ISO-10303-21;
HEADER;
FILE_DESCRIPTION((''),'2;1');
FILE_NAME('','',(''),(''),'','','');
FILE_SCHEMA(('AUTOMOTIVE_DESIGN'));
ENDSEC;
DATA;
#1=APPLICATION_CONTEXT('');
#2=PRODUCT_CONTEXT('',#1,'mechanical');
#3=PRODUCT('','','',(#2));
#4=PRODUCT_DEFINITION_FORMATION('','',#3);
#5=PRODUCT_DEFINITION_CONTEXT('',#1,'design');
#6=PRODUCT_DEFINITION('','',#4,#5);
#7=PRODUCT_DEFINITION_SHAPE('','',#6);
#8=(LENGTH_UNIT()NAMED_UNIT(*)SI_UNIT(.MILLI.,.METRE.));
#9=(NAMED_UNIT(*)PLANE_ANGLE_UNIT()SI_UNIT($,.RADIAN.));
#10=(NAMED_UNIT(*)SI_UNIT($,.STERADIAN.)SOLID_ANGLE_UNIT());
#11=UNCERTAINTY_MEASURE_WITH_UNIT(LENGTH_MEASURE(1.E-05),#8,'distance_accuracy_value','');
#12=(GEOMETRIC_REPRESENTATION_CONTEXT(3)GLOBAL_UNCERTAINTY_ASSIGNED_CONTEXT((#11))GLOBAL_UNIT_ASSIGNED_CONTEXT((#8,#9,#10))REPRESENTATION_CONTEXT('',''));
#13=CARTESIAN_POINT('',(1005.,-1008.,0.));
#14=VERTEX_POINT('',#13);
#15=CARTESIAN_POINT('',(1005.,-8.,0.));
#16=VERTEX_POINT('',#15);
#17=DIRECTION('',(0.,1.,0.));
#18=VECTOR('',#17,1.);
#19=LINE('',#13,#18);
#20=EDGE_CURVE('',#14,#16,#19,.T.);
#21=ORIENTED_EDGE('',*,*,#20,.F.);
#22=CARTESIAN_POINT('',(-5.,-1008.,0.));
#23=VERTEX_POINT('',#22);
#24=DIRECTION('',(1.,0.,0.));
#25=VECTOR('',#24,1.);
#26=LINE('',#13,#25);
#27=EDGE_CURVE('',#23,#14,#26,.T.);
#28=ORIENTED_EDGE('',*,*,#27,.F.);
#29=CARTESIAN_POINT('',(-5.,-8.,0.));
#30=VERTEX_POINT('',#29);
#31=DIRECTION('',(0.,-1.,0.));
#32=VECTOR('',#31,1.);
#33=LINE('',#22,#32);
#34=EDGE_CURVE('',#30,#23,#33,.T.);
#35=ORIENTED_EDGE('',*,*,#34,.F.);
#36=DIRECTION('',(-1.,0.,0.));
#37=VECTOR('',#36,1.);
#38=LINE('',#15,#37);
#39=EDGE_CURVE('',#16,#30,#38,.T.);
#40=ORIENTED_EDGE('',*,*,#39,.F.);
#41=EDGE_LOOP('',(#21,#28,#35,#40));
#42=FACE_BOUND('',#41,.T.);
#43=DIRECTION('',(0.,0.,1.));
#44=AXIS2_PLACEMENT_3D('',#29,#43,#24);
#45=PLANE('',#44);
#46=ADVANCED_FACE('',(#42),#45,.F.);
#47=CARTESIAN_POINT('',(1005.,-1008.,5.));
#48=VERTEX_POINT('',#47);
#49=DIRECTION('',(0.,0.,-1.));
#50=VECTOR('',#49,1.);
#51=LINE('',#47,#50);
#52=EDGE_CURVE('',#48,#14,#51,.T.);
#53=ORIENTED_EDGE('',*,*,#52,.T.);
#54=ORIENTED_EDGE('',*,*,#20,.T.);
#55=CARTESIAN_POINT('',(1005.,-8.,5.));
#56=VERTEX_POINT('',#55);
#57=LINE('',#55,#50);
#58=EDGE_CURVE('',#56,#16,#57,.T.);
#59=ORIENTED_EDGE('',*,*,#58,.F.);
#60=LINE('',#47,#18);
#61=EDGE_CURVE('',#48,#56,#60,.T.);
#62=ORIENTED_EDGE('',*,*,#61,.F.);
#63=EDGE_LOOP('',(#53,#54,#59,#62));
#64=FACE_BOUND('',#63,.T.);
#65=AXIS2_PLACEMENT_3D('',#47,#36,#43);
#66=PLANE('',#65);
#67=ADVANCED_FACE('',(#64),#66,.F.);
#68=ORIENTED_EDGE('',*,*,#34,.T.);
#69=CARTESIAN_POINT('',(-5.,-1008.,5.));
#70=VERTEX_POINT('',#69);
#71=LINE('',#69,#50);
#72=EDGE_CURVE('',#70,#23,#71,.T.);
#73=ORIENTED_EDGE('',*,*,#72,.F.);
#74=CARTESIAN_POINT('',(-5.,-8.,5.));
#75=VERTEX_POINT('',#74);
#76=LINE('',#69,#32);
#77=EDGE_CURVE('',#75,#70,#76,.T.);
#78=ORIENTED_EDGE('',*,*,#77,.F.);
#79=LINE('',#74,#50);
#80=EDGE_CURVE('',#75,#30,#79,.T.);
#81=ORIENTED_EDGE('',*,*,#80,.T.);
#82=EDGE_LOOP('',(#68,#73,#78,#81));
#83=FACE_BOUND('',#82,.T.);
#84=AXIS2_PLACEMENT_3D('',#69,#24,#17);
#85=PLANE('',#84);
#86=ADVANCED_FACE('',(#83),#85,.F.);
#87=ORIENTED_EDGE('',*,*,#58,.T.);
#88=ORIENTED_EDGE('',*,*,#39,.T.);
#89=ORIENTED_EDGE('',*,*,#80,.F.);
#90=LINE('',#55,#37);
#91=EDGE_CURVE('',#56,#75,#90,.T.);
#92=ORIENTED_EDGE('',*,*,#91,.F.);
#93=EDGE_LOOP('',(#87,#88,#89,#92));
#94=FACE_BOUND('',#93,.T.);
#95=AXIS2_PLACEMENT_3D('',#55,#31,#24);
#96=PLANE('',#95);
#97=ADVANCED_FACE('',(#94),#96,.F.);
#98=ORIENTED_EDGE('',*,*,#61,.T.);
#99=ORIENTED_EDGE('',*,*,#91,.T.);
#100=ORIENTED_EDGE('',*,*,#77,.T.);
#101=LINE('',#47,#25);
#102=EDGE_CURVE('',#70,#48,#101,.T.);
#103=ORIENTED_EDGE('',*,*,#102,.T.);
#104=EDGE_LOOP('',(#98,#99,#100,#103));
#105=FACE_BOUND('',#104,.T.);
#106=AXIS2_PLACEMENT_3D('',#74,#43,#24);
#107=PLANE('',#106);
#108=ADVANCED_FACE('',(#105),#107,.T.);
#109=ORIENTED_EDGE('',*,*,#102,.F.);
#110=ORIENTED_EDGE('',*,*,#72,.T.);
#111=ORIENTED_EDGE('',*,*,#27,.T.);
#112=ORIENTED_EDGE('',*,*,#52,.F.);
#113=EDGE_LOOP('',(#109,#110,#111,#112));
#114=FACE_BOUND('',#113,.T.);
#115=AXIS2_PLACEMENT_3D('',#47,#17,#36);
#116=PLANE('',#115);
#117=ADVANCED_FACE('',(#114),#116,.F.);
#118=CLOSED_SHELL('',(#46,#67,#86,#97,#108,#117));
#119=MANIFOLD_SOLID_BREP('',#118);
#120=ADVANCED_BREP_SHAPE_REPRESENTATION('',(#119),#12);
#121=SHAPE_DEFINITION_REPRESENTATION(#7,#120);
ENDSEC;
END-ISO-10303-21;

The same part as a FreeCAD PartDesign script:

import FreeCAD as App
import Part
import Sketcher

V = App.Vector
Q = App.Units.Quantity

doc = App.newDocument("Part")
params = doc.addObject("Spreadsheet::Sheet", "Params")
for row, (alias, value) in enumerate([
    ("sketch1_width", "1010 mm"),
    ("sketch1_height", "1000 mm"),
    ("pad1_length", "5 mm"),
], start=1):
    params.set(f"A{row}", alias)
    params.set(f"B{row}", "=" + value)
    params.setAlias(f"B{row}", alias)

body = doc.addObject("PartDesign::Body", "Body")

sketch1 = doc.addObject("Sketcher::SketchObject", "Sketch")
body.addObject(sketch1)
sketch1.AttachmentSupport = (doc.XY_Plane, [""])
sketch1.MapMode = "FlatFace"
sketch1.addGeometry(Part.LineSegment(V(-5, -8, 0), V(-5, -1008, 0)), False)
sketch1.addGeometry(Part.LineSegment(V(-5, -1008, 0), V(1005, -1008, 0)), False)
sketch1.addGeometry(Part.LineSegment(V(1005, -1008, 0), V(1005, -8, 0)), False)
sketch1.addGeometry(Part.LineSegment(V(1005, -8, 0), V(-5, -8, 0)), False)
sketch1.addConstraint(Sketcher.Constraint("Coincident", 0, 2, 1, 1))
sketch1.addConstraint(Sketcher.Constraint("Coincident", 1, 2, 2, 1))
sketch1.addConstraint(Sketcher.Constraint("Coincident", 2, 2, 3, 1))
sketch1.addConstraint(Sketcher.Constraint("Coincident", 3, 2, 0, 1))
sketch1.addConstraint(Sketcher.Constraint("Vertical", 0))
sketch1.addConstraint(Sketcher.Constraint("Horizontal", 1))
sketch1.addConstraint(Sketcher.Constraint("Vertical", 2))
sketch1.addConstraint(Sketcher.Constraint("Horizontal", 3))
sketch1.addConstraint(Sketcher.Constraint("DistanceX", 1, 1, 1, 2, Q("1010 mm")))
sketch1.addConstraint(Sketcher.Constraint("DistanceY", 0, 2, 0, 1, Q("1000 mm")))
sketch1.addConstraint(Sketcher.Constraint("DistanceX", 0, 2, -1, 1, Q("5 mm")))
sketch1.addConstraint(Sketcher.Constraint("DistanceY", 0, 2, -1, 1, Q("1008 mm")))
sketch1.setExpression("Constraints[8]", "Params.sketch1_width")
sketch1.setExpression("Constraints[9]", "Params.sketch1_height")
pad1 = doc.addObject("PartDesign::Pad", "Pad")
body.addObject(pad1)
pad1.Profile = sketch1
pad1.setExpression("Length", "Params.pad1_length")

doc.recompute()
